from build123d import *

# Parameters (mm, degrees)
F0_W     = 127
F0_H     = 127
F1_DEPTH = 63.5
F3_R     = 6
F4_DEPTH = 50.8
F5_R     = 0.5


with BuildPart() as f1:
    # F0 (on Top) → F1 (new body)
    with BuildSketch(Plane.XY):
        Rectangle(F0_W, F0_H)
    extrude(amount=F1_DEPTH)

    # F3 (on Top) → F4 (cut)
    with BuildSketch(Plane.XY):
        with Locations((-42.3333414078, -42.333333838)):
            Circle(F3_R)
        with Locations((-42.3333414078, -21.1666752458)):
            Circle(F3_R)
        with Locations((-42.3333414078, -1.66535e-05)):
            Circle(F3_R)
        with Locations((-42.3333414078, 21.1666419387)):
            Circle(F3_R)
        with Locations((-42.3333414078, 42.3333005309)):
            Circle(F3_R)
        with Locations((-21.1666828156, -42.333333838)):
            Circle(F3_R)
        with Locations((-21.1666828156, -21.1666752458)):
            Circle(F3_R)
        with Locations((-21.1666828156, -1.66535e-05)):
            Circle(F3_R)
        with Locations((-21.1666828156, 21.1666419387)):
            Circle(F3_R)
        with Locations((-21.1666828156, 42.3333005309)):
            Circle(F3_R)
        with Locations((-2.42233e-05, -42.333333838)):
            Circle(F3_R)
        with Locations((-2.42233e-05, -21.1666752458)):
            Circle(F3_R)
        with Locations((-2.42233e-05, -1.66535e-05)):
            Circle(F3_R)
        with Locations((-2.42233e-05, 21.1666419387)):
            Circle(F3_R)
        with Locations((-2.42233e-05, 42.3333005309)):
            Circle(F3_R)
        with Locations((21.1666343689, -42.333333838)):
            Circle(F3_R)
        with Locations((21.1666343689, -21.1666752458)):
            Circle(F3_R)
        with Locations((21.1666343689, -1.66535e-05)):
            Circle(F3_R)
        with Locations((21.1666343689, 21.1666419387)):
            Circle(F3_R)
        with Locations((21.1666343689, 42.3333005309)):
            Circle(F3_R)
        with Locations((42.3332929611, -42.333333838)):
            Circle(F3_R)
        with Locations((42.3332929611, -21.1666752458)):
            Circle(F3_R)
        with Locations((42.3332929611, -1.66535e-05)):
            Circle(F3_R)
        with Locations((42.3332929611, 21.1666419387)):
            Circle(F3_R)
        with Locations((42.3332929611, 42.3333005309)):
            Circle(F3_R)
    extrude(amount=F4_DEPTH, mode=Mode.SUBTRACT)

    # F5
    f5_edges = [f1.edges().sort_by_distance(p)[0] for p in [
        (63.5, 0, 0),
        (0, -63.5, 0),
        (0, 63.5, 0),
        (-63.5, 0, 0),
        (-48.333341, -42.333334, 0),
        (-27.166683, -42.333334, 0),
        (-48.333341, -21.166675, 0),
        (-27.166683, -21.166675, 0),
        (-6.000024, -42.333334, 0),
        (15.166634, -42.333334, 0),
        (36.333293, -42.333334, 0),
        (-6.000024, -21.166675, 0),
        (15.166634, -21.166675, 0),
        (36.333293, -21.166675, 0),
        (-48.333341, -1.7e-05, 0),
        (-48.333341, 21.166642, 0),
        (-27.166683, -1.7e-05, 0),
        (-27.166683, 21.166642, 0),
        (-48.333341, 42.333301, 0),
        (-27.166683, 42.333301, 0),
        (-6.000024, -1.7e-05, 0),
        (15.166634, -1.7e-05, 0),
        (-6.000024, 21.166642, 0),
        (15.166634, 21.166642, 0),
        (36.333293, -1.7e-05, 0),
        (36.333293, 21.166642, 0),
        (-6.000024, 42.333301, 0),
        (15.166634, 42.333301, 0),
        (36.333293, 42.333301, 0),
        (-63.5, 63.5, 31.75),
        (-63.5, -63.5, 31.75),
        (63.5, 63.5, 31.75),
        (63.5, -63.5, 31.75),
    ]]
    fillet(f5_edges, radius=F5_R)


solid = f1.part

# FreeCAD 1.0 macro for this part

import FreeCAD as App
import Part
import Sketcher
Q = App.Units.Quantity


def edges_at(feature, points):
    """Names of the edges that pass closest to the given points."""
    edges = feature.Shape.Edges
    near = lambda p: min(range(len(edges)), key=lambda i: edges[i].distToShape(Part.Vertex(*p))[0])
    return sorted({f"Edge{near(p) + 1}" for p in points})


def add_polygon(sketch, points):
    """Adds a closed chain of lines whose ends are joined by coincident constraints."""
    first, n = sketch.GeometryCount, len(points)
    for a, b in zip(points, points[1:] + points[:1]):
        sketch.addGeometry(Part.LineSegment(App.Vector(*a, 0), App.Vector(*b, 0)), False)
    for i in range(n):
        sketch.addConstraint(Sketcher.Constraint("Coincident", first + i, 2, first + (i + 1) % n, 1))

doc = App.newDocument("Part")
body = doc.addObject("PartDesign::Body", "Body")

# Sketch on XY plane
sketch1 = body.newObject("Sketcher::SketchObject", "Sketch")
sketch1.AttachmentSupport = (doc.getObject("XY_Plane"), [""])
sketch1.MapMode = "FlatFace"
add_polygon(sketch1, [(-64, 64), (-64, -64), (64, -64), (64, 64)])  # lines 0-3
sketch1.addConstraint([
    Sketcher.Constraint("Vertical", 0),
    Sketcher.Constraint("Horizontal", 1),
    Sketcher.Constraint("Vertical", 2),
    Sketcher.Constraint("Horizontal", 3),
    Sketcher.Constraint("Symmetric", 0, 2, 2, 2, -1, 1),
    Sketcher.Constraint("Equal", 3, 0),
    Sketcher.Constraint("DistanceX", 1, 1, 1, 2, Q("5 in")),
])
pad1 = body.newObject("PartDesign::Pad", "Pad")
pad1.Profile = sketch1
pad1.Length = Q("2.5 in")

# Sketch on XY plane
sketch2 = body.newObject("Sketcher::SketchObject", "Sketch001")
sketch2.AttachmentSupport = (doc.getObject("XY_Plane"), [""])
sketch2.MapMode = "FlatFace"
sketch2.addGeometry([
    Part.Circle(App.Vector(-42, -42, 0), App.Vector(0, 0, 1), 6),  # 0
    Part.Circle(App.Vector(-42, -21, 0), App.Vector(0, 0, 1), 6),  # 1
    Part.Circle(App.Vector(-42, 0, 0), App.Vector(0, 0, 1), 6),  # 2
    Part.Circle(App.Vector(-42, 21, 0), App.Vector(0, 0, 1), 6),  # 3
    Part.Circle(App.Vector(-42, 42, 0), App.Vector(0, 0, 1), 6),  # 4
    Part.Circle(App.Vector(-21, -42, 0), App.Vector(0, 0, 1), 6),  # 5
    Part.Circle(App.Vector(-21, -21, 0), App.Vector(0, 0, 1), 6),  # 6
    Part.Circle(App.Vector(-21, 0, 0), App.Vector(0, 0, 1), 6),  # 7
    Part.Circle(App.Vector(-21, 21, 0), App.Vector(0, 0, 1), 6),  # 8
    Part.Circle(App.Vector(-21, 42, 0), App.Vector(0, 0, 1), 6),  # 9
    Part.Circle(App.Vector(0, -42, 0), App.Vector(0, 0, 1), 6),  # 10
    Part.Circle(App.Vector(0, -21, 0), App.Vector(0, 0, 1), 6),  # 11
    Part.Circle(App.Vector(0, 0, 0), App.Vector(0, 0, 1), 6),  # 12
    Part.Circle(App.Vector(0, 21, 0), App.Vector(0, 0, 1), 6),  # 13
    Part.Circle(App.Vector(0, 42, 0), App.Vector(0, 0, 1), 6),  # 14
    Part.Circle(App.Vector(21, -42, 0), App.Vector(0, 0, 1), 6),  # 15
    Part.Circle(App.Vector(21, -21, 0), App.Vector(0, 0, 1), 6),  # 16
    Part.Circle(App.Vector(21, 0, 0), App.Vector(0, 0, 1), 6),  # 17
    Part.Circle(App.Vector(21, 21, 0), App.Vector(0, 0, 1), 6),  # 18
    Part.Circle(App.Vector(21, 42, 0), App.Vector(0, 0, 1), 6),  # 19
    Part.Circle(App.Vector(42, -42, 0), App.Vector(0, 0, 1), 6),  # 20
    Part.Circle(App.Vector(42, -21, 0), App.Vector(0, 0, 1), 6),  # 21
    Part.Circle(App.Vector(42, 0, 0), App.Vector(0, 0, 1), 6),  # 22
    Part.Circle(App.Vector(42, 21, 0), App.Vector(0, 0, 1), 6),  # 23
    Part.Circle(App.Vector(42, 42, 0), App.Vector(0, 0, 1), 6),  # 24
], False)
sketch2.addConstraint([
    Sketcher.Constraint("Equal", 0, 1),
    Sketcher.Constraint("Equal", 1, 2),
    Sketcher.Constraint("Equal", 2, 3),
    Sketcher.Constraint("Equal", 3, 4),
    Sketcher.Constraint("Equal", 4, 5),
    Sketcher.Constraint("Equal", 5, 6),
    Sketcher.Constraint("Equal", 6, 7),
    Sketcher.Constraint("Equal", 7, 8),
    Sketcher.Constraint("Equal", 8, 9),
    Sketcher.Constraint("Equal", 9, 10),
    Sketcher.Constraint("Equal", 10, 11),
    Sketcher.Constraint("Equal", 11, 12),
    Sketcher.Constraint("Equal", 12, 13),
    Sketcher.Constraint("Equal", 13, 14),
    Sketcher.Constraint("Equal", 14, 15),
    Sketcher.Constraint("Equal", 15, 16),
    Sketcher.Constraint("Equal", 16, 17),
    Sketcher.Constraint("Equal", 17, 18),
    Sketcher.Constraint("Equal", 18, 19),
    Sketcher.Constraint("Equal", 19, 20),
    Sketcher.Constraint("Equal", 20, 21),
    Sketcher.Constraint("Equal", 21, 22),
    Sketcher.Constraint("Equal", 22, 23),
    Sketcher.Constraint("Equal", 23, 24),
    Sketcher.Constraint("Horizontal", 0, 3, 5, 3),
    Sketcher.Constraint("Horizontal", 1, 3, 6, 3),
    Sketcher.Constraint("Horizontal", 2, 3, 7, 3),
    Sketcher.Constraint("Horizontal", 3, 3, 8, 3),
    Sketcher.Constraint("Horizontal", 4, 3, 9, 3),
    Sketcher.Constraint("Horizontal", 5, 3, 10, 3),
    Sketcher.Constraint("Horizontal", 6, 3, 11, 3),
    Sketcher.Constraint("Horizontal", 7, 3, 12, 3),
    Sketcher.Constraint("Horizontal", 8, 3, 13, 3),
    Sketcher.Constraint("Horizontal", 9, 3, 14, 3),
    Sketcher.Constraint("Horizontal", 10, 3, 15, 3),
    Sketcher.Constraint("Horizontal", 11, 3, 16, 3),
    Sketcher.Constraint("Horizontal", 12, 3, 17, 3),
    Sketcher.Constraint("Horizontal", 13, 3, 18, 3),
    Sketcher.Constraint("Horizontal", 14, 3, 19, 3),
    Sketcher.Constraint("Horizontal", 15, 3, 20, 3),
    Sketcher.Constraint("Horizontal", 16, 3, 21, 3),
    Sketcher.Constraint("Horizontal", 17, 3, 22, 3),
    Sketcher.Constraint("Horizontal", 18, 3, 23, 3),
    Sketcher.Constraint("Horizontal", 19, 3, 24, 3),
    Sketcher.Constraint("Vertical", 0, 3, 1, 3),
    Sketcher.Constraint("Vertical", 1, 3, 2, 3),
    Sketcher.Constraint("Vertical", 2, 3, 3, 3),
    Sketcher.Constraint("Vertical", 3, 3, 4, 3),
    Sketcher.Constraint("Vertical", 5, 3, 6, 3),
    Sketcher.Constraint("Vertical", 6, 3, 7, 3),
    Sketcher.Constraint("Vertical", 7, 3, 8, 3),
    Sketcher.Constraint("Vertical", 8, 3, 9, 3),
    Sketcher.Constraint("Vertical", 10, 3, 11, 3),
    Sketcher.Constraint("Vertical", 11, 3, 12, 3),
    Sketcher.Constraint("Vertical", 12, 3, 13, 3),
    Sketcher.Constraint("Vertical", 13, 3, 14, 3),
    Sketcher.Constraint("Vertical", 15, 3, 16, 3),
    Sketcher.Constraint("Vertical", 16, 3, 17, 3),
    Sketcher.Constraint("Vertical", 17, 3, 18, 3),
    Sketcher.Constraint("Vertical", 18, 3, 19, 3),
    Sketcher.Constraint("Vertical", 20, 3, 21, 3),
    Sketcher.Constraint("Vertical", 21, 3, 22, 3),
    Sketcher.Constraint("Vertical", 22, 3, 23, 3),
    Sketcher.Constraint("Vertical", 23, 3, 24, 3),
    Sketcher.Constraint("Diameter", 0, Q("12 mm")),
    Sketcher.Constraint("DistanceY", -1, 1, 4, 3, Q("42.333301 mm")),
    Sketcher.Constraint("DistanceX", 0, 3, -1, 1, Q("42.333341 mm")),
    Sketcher.Constraint("DistanceY", -1, 1, 3, 3, Q("21.166642 mm")),
    Sketcher.Constraint("DistanceY", 0, 3, 1, 3, Q("21.166659 mm")),
    Sketcher.Constraint("DistanceY", 1, 3, 2, 3, Q("21.166659 mm")),
    Sketcher.Constraint("DistanceY", 2, 3, 3, 3, Q("21.166659 mm")),
    Sketcher.Constraint("DistanceX", 0, 3, 5, 3, Q("21.166659 mm")),
    Sketcher.Constraint("DistanceX", 5, 3, 10, 3, Q("21.166659 mm")),
    Sketcher.Constraint("DistanceX", 10, 3, 15, 3, Q("21.166659 mm")),
    Sketcher.Constraint("DistanceX", 15, 3, 20, 3, Q("21.166659 mm")),
])
pocket1 = body.newObject("PartDesign::Pocket", "Pocket")
pocket1.Profile = sketch2
pocket1.Length = Q("2 in")
pocket1.Reversed = True
doc.recompute()

fillet = body.newObject("PartDesign::Fillet", "Fillet")
fillet.Base = (pocket1, edges_at(pocket1, [
    (63.5, 0, 0),
    (0, -63.5, 0),
    (0, 63.5, 0),
    (-63.5, 0, 0),
    (-48.333, -42.333, 0),
    (-27.167, -42.333, 0),
    (-48.333, -21.167, 0),
    (-27.167, -21.167, 0),
    (-6, -42.333, 0),
    (15.167, -42.333, 0),
    (36.333, -42.333, 0),
    (-6, -21.167, 0),
    (15.167, -21.167, 0),
    (36.333, -21.167, 0),
    (-48.333, 0, 0),
    (-48.333, 21.167, 0),
    (-27.167, 0, 0),
    (-27.167, 21.167, 0),
    (-48.333, 42.333, 0),
    (-27.167, 42.333, 0),
    (-6, 0, 0),
    (15.167, 0, 0),
    (-6, 21.167, 0),
    (15.167, 21.167, 0),
    (36.333, 0, 0),
    (36.333, 21.167, 0),
    (-6, 42.333, 0),
    (15.167, 42.333, 0),
    (36.333, 42.333, 0),
    (-63.5, 63.5, 31.75),
    (-63.5, -63.5, 31.75),
    (63.5, 63.5, 31.75),
    (63.5, -63.5, 31.75),
]))
fillet.Radius = 0.5

doc.recompute()
